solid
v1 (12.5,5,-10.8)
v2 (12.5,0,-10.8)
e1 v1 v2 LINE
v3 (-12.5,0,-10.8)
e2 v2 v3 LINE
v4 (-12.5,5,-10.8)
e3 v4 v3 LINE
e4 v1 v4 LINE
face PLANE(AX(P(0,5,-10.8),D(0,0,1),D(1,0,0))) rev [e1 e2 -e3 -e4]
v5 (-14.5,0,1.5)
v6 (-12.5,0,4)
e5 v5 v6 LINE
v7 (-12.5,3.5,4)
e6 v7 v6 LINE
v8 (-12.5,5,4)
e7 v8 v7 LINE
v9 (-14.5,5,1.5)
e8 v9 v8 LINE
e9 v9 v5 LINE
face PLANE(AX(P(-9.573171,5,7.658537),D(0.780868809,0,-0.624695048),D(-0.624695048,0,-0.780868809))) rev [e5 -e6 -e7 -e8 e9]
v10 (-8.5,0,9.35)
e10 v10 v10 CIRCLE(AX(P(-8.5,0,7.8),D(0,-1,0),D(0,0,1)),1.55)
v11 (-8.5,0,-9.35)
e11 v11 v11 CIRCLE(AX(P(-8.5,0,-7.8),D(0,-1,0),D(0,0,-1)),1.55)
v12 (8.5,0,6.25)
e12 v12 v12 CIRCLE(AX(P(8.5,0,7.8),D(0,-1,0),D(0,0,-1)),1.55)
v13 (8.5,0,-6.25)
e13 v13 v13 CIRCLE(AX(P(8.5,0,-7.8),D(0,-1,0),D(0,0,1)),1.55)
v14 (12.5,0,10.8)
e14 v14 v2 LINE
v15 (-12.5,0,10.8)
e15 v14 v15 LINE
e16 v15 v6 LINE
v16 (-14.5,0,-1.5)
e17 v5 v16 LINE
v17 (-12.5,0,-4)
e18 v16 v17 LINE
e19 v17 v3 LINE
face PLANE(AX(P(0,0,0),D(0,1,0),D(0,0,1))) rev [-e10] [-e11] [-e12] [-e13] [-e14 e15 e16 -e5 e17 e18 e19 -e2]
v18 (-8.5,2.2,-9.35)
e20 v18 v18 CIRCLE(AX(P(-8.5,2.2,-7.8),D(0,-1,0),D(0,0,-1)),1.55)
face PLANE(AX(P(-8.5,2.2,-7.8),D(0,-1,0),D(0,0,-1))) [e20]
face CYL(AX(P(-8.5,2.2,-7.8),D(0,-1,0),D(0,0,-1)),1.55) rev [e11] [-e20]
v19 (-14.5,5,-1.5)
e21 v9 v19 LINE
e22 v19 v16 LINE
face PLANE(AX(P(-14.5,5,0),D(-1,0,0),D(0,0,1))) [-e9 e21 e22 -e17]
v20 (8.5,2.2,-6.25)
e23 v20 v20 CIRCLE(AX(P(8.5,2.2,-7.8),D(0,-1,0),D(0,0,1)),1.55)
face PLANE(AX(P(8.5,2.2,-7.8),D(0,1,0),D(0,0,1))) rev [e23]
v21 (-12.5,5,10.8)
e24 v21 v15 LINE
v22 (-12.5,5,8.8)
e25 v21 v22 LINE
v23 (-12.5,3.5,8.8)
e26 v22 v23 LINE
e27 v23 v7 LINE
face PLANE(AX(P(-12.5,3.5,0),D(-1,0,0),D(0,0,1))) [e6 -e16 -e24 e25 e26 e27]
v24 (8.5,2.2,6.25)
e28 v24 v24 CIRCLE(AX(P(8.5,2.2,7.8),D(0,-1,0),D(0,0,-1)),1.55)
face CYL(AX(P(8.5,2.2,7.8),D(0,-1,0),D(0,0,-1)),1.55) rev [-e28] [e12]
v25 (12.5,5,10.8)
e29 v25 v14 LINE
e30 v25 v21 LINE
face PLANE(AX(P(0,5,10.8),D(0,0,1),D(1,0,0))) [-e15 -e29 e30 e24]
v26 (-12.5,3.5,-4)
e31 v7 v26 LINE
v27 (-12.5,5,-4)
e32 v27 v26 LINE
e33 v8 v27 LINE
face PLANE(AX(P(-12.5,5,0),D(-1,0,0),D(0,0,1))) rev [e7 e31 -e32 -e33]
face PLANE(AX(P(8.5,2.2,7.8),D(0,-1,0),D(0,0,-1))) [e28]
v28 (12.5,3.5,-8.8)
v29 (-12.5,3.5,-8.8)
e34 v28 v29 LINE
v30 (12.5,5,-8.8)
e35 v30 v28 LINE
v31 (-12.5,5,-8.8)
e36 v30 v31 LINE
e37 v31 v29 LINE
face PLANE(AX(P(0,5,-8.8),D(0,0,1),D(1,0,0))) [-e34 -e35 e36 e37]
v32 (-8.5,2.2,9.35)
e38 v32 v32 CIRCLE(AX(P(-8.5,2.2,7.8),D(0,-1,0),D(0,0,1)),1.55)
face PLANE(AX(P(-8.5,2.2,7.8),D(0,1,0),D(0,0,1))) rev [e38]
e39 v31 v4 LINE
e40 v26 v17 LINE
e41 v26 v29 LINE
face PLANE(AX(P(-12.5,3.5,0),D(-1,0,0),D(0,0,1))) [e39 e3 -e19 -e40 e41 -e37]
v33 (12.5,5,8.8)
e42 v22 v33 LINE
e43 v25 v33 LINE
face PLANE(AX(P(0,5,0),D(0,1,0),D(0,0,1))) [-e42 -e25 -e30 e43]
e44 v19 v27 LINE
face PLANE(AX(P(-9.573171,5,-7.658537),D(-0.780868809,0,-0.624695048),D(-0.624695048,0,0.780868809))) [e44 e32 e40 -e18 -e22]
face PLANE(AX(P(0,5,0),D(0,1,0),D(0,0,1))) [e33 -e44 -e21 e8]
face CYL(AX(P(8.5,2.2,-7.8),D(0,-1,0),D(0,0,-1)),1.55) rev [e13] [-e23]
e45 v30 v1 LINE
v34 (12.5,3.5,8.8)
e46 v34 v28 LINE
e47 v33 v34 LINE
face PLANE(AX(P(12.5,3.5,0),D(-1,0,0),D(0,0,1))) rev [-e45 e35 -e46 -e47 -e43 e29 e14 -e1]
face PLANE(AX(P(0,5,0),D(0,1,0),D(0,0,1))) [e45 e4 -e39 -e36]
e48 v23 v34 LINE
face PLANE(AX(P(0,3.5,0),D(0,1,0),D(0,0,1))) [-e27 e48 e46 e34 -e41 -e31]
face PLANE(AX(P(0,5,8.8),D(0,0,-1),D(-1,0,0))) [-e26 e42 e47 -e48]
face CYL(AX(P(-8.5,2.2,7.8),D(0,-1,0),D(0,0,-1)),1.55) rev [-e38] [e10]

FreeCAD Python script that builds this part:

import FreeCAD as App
import Part
import Sketcher
from FreeCAD import Vector
Q = App.Units.Quantity


def add_polygon(sketch, points):
    """Adds a closed chain of lines whose ends are joined by coincident constraints."""
    first, n = sketch.GeometryCount, len(points)
    for a, b in zip(points, points[1:] + points[:1]):
        sketch.addGeometry(Part.LineSegment(App.Vector(*a, 0), App.Vector(*b, 0)), False)
    for i in range(n):
        sketch.addConstraint(Sketcher.Constraint("Coincident", first + i, 2, first + (i + 1) % n, 1))

doc = App.newDocument("Part")
body = doc.addObject("PartDesign::Body", "Body")

sketch1 = body.newObject("Sketcher::SketchObject", "Sketch")
sketch1.AttachmentSupport = (doc.getObject("XZ_Plane"), [""])
sketch1.MapMode = "FlatFace"
add_polygon(sketch1, [(12, 9), (12, -9), (-12, -9), (-12, 9)])
sketch1.addConstraint(Sketcher.Constraint("Vertical", 0))
sketch1.addConstraint(Sketcher.Constraint("Horizontal", 1))
sketch1.addConstraint(Sketcher.Constraint("Vertical", 2))
sketch1.addConstraint(Sketcher.Constraint("Horizontal", 3))
sketch1.addConstraint(Sketcher.Constraint("Symmetric", 0, 2, 2, 2, -1, 1))
sketch1.addConstraint(Sketcher.Constraint("DistanceX", 1, 2, 1, 1, Q("25 mm")))
sketch1.addConstraint(Sketcher.Constraint("DistanceY", 0, 2, 0, 1, Q("17.6 mm")))
pad1 = body.newObject("PartDesign::Pad", "Pad")
pad1.Profile = sketch1
pad1.Length = 3.5
pad1.Reversed = True

sketch2 = body.newObject("Sketcher::SketchObject", "Sketch001")
sketch2.AttachmentSupport = (doc.getObject("XZ_Plane"), [""])
sketch2.MapMode = "FlatFace"
add_polygon(sketch2, [(-12.5, 8.8), (-12.5, 10.8), (12.5, 10.8), (12.5, 8.8)])
add_polygon(sketch2, [(-12.5, -10.8), (-12.5, -8.8), (12.5, -8.8), (12.5, -10.8)])
add_polygon(sketch2, [(-12.5, -4), (-14.5, -1.5), (-14.5, 1.5), (-12.5, 4)])
sketch2.addConstraint(Sketcher.Constraint("Vertical", 0))
sketch2.addConstraint(Sketcher.Constraint("Horizontal", 1))
sketch2.addConstraint(Sketcher.Constraint("Vertical", 2))
sketch2.addConstraint(Sketcher.Constraint("Horizontal", 3))
sketch2.addConstraint(Sketcher.Constraint("Vertical", 4))
sketch2.addConstraint(Sketcher.Constraint("Horizontal", 5))
sketch2.addConstraint(Sketcher.Constraint("Vertical", 6))
sketch2.addConstraint(Sketcher.Constraint("Horizontal", 7))
sketch2.addConstraint(Sketcher.Constraint("Vertical", 9))
sketch2.addConstraint(Sketcher.Constraint("Vertical", 11))
sketch2.addConstraint(Sketcher.Constraint("Symmetric", 2, 2, 4, 2, -1, 1))
sketch2.addConstraint(Sketcher.Constraint("Symmetric", 0, 2, 6, 2, -1, 1))
sketch2.addConstraint(Sketcher.Constraint("Vertical", 3, 2, 4, 2))
sketch2.addConstraint(Sketcher.Constraint("Vertical", 7, 2, 10, 2))
sketch2.addConstraint(Sketcher.Constraint("Equal", 8, 10))
sketch2.addConstraint(Sketcher.Constraint("DistanceX", 1, 1, 1, 2, Q("25 mm")))
sketch2.addConstraint(Sketcher.Constraint("DistanceY", 0, 1, 0, 2, Q("2 mm")))
sketch2.addConstraint(Sketcher.Constraint("DistanceY", 9, 1, 9, 2, Q("3 mm")))
sketch2.addConstraint(Sketcher.Constraint("DistanceY", 11, 2, 11, 1, Q("8 mm")))
sketch2.addConstraint(Sketcher.Constraint("DistanceY", -1, 1, 10, 2, Q("4 mm")))
sketch2.addConstraint(Sketcher.Constraint("DistanceX", 8, 2, 4, 2, Q("2 mm")))
sketch2.addConstraint(Sketcher.Constraint("DistanceY", -1, 1, 0, 2, Q("10.8 mm")))
pad2 = body.newObject("PartDesign::Pad", "Pad001")
pad2.Profile = sketch2
pad2.Length = 5
pad2.Reversed = True

sketch3 = body.newObject("Sketcher::SketchObject", "Sketch002")
sketch3.AttachmentSupport = (doc.getObject("XZ_Plane"), [""])
sketch3.MapMode = "FlatFace"
sketch3.addGeometry(Part.Circle(Vector(8.5, 7.8, 0), Vector(0, 0, 1), 1.6), False)
sketch3.addGeometry(Part.Circle(Vector(-8.5, 7.8, 0), Vector(0, 0, 1), 1.6), False)
sketch3.addGeometry(Part.Circle(Vector(-8.5, -7.8, 0), Vector(0, 0, 1), 1.6), False)
sketch3.addGeometry(Part.Circle(Vector(8.5, -7.8, 0), Vector(0, 0, 1), 1.6), False)
sketch3.addConstraint(Sketcher.Constraint("Equal", 0, 1))
sketch3.addConstraint(Sketcher.Constraint("Equal", 1, 2))
sketch3.addConstraint(Sketcher.Constraint("Equal", 2, 3))
sketch3.addConstraint(Sketcher.Constraint("Symmetric", 0, 3, 2, 3, -1, 1))
sketch3.addConstraint(Sketcher.Constraint("Symmetric", 1, 3, 3, 3, -1, 1))
sketch3.addConstraint(Sketcher.Constraint("Symmetric", 0, 3, 1, 3, -2))
sketch3.addConstraint(Sketcher.Constraint("Diameter", 0, Q("3.1 mm")))
sketch3.addConstraint(Sketcher.Constraint("DistanceX", 1, 3, 0, 3, Q("17 mm")))
sketch3.addConstraint(Sketcher.Constraint("DistanceY", -1, 1, 0, 3, Q("7.8 mm")))
pocket1 = body.newObject("PartDesign::Pocket", "Pocket")
pocket1.Profile = sketch3
pocket1.Length = 2.2

doc.recompute()
